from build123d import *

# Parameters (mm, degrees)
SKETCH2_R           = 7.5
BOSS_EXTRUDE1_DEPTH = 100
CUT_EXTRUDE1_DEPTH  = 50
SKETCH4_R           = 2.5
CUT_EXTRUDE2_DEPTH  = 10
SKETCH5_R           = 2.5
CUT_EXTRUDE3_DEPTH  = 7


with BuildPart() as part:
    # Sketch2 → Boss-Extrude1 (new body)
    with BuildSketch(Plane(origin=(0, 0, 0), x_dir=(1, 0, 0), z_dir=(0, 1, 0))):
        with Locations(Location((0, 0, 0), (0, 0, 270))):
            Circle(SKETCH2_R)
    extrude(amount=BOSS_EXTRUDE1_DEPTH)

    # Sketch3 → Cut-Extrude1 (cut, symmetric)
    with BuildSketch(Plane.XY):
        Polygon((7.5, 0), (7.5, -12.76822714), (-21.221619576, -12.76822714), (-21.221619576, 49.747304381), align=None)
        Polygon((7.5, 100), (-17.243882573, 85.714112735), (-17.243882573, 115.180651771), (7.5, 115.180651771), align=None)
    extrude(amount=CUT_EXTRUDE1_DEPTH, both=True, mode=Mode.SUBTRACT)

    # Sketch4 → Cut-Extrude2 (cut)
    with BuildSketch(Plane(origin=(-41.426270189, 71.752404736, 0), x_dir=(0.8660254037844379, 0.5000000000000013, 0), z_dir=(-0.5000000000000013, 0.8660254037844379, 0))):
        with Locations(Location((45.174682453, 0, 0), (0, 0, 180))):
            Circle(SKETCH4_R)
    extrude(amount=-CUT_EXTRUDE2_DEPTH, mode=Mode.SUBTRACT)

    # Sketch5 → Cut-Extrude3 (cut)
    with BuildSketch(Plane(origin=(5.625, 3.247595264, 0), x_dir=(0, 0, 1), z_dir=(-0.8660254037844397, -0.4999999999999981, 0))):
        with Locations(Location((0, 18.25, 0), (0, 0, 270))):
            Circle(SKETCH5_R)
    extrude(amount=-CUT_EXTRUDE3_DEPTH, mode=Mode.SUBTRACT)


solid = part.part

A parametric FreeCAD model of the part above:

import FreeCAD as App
import Part
import Sketcher
from FreeCAD import Vector
Q = App.Units.Quantity

doc = App.newDocument("Part")
body = doc.addObject("PartDesign::Body", "Body")

# Sketch on XZ plane
sketch1 = body.newObject("Sketcher::SketchObject", "Sketch")
sketch1.AttachmentSupport = (doc.getObject("XZ_Plane"), [""])
sketch1.MapMode = "FlatFace"
sketch1.addGeometry(Part.Circle(Vector(0, 0, 0), Vector(0, 0, 1), 7.5), False)
sketch1.addConstraint([
    Sketcher.Constraint("Coincident", 0, 3, -1, 1),
    Sketcher.Constraint("Diameter", 0, 15.0),
])
pad1 = body.newObject("PartDesign::Pad", "Pad")
pad1.Profile = sketch1
pad1.Length = 100
pad1.Reversed = True

# Sketch on XY plane
sketch2 = body.newObject("Sketcher::SketchObject", "Sketch001")
sketch2.AttachmentSupport = (doc.getObject("XY_Plane"), [""])
sketch2.MapMode = "FlatFace"
sketch2.addGeometry([
    Part.LineSegment(Vector(7.5, -12.768227, 0), Vector(7.5, 0, 0)),  # 0
    Part.LineSegment(Vector(7.5, 0, 0), Vector(-21.22162, 49.747304, 0)),  # 1
    Part.LineSegment(Vector(-21.22162, 49.747304, 0), Vector(-21.22162, -12.768227, 0)),  # 2
    Part.LineSegment(Vector(-21.22162, -12.768227, 0), Vector(7.5, -12.768227, 0)),  # 3
    Part.LineSegment(Vector(-17.243883, 85.714113, 0), Vector(7.5, 100, 0)),  # 4
    Part.LineSegment(Vector(7.5, 100, 0), Vector(7.5, 115.180652, 0)),  # 5
    Part.LineSegment(Vector(7.5, 115.180652, 0), Vector(-17.243883, 115.180652, 0)),  # 6
    Part.LineSegment(Vector(-17.243883, 115.180652, 0), Vector(-17.243883, 85.714113, 0)),  # 7
], False)
sketch2.addConstraint([
    Sketcher.Constraint("Coincident", 0, 2, 1, 1),
    Sketcher.Constraint("Coincident", 1, 2, 2, 1),
    Sketcher.Constraint("Coincident", 2, 2, 3, 1),
    Sketcher.Constraint("Coincident", 3, 2, 0, 1),
    Sketcher.Constraint("Coincident", 4, 2, 5, 1),
    Sketcher.Constraint("Coincident", 5, 2, 6, 1),
    Sketcher.Constraint("Coincident", 6, 2, 7, 1),
    Sketcher.Constraint("Coincident", 7, 2, 4, 1),
    Sketcher.Constraint("Vertical", 0),
    Sketcher.Constraint("Vertical", 2),
    Sketcher.Constraint("Horizontal", 3),
    Sketcher.Constraint("Vertical", 5),
    Sketcher.Constraint("Horizontal", 6),
    Sketcher.Constraint("Vertical", 7),
    Sketcher.Constraint("PointOnObject", 0, 2, -1),
    Sketcher.Constraint("Perpendicular", 1, 4),
    Sketcher.Constraint("Vertical", 3, 2, 4, 2),
    Sketcher.Constraint("Angle", 1, Q("120 deg")),
    Sketcher.Constraint("DistanceY", -1, 1, 4, 2, 100.0),
    Sketcher.Constraint("DistanceX", -1, 1, 0, 2, 7.5),
    Sketcher.Constraint("DistanceX", 3, 1, 3, 2, 28.72162),
    Sketcher.Constraint("DistanceY", 2, 2, 2, 1, 62.515532),
    Sketcher.Constraint("DistanceY", 5, 1, 5, 2, 15.180652),
    Sketcher.Constraint("DistanceY", 7, 2, 7, 1, 29.466539),
])
pocket1 = body.newObject("PartDesign::Pocket", "Pocket")
pocket1.Profile = sketch2
pocket1.Length = 100
pocket1.Midplane = True

# Sketch on an angled plane
sketch3 = body.newObject("Sketcher::SketchObject", "Sketch002")
sketch3.Placement = App.Placement(Vector(-41.42627, 71.752405, 0), App.Rotation(Vector(0.866025404, 0.5, 0), Vector(0, 0, -1), Vector(-0.5, 0.866025404, 0), "ZXY"))
sketch3.addGeometry(Part.Circle(Vector(45.174682, 0, 0), Vector(0, 0, 1), 2.5), False)
sketch3.addConstraint([
    Sketcher.Constraint("PointOnObject", 0, 3, -1),
    Sketcher.Constraint("Diameter", 0, 5.0),
    Sketcher.Constraint("DistanceX", -1, 1, 0, 3, 45.174682),
])
pocket2 = body.newObject("PartDesign::Pocket", "Pocket001")
pocket2.Profile = sketch3
pocket2.Length = 10

# Sketch on an angled plane
sketch4 = body.newObject("Sketcher::SketchObject", "Sketch003")
sketch4.Placement = App.Placement(Vector(5.625, 3.247595, 0), App.Rotation(Vector(0, 0, 1), Vector(-0.5, 0.866025404, 0), Vector(-0.866025404, -0.5, 0), "ZXY"))
sketch4.addGeometry(Part.Circle(Vector(0, 18.25, 0), Vector(0, 0, 1), 2.5), False)
sketch4.addConstraint([
    Sketcher.Constraint("PointOnObject", 0, 3, -2),
    Sketcher.Constraint("Diameter", 0, 5.0),
    Sketcher.Constraint("DistanceY", -1, 1, 0, 3, 18.25),
])
pocket3 = body.newObject("PartDesign::Pocket", "Pocket002")
pocket3.Profile = sketch4
pocket3.Length = 7

doc.recompute()
